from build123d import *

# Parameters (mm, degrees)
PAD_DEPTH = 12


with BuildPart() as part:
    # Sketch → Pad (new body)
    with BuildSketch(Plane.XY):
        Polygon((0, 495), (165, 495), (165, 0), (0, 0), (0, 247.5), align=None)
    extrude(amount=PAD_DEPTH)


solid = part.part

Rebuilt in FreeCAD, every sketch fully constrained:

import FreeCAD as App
import Part
import Sketcher
from FreeCAD import Vector

doc = App.newDocument("Part")
params = doc.addObject("Spreadsheet::Sheet", "Params")
for row, (alias, value) in enumerate([
    ("sketch1_width", "165 mm"),
    ("sketch1_height", "495 mm"),
    ("pad1_length", "12 mm"),
], start=1):
    params.set(f"A{row}", alias)
    params.set(f"B{row}", "=" + value)
    params.setAlias(f"B{row}", alias)

body = doc.addObject("PartDesign::Body", "Body")

sketch1 = body.newObject("Sketcher::SketchObject", "Sketch")
sketch1.AttachmentSupport = (doc.getObject("XY_Plane"), [""])
sketch1.MapMode = "FlatFace"
sketch1.addGeometry(Part.LineSegment(Vector(165, 495, 0), Vector(0, 495, 0)), False)
sketch1.addGeometry(Part.LineSegment(Vector(0, 495, 0), Vector(0, 0, 0)), False)
sketch1.addGeometry(Part.LineSegment(Vector(0, 0, 0), Vector(165, 0, 0)), False)
sketch1.addGeometry(Part.LineSegment(Vector(165, 0, 0), Vector(165, 495, 0)), False)
sketch1.addConstraint(Sketcher.Constraint("Coincident", 0, 2, 1, 1))
sketch1.addConstraint(Sketcher.Constraint("Coincident", 1, 2, 2, 1))
sketch1.addConstraint(Sketcher.Constraint("Coincident", 2, 2, 3, 1))
sketch1.addConstraint(Sketcher.Constraint("Coincident", 3, 2, 0, 1))
sketch1.addConstraint(Sketcher.Constraint("Horizontal", 0))
sketch1.addConstraint(Sketcher.Constraint("Vertical", 1))
sketch1.addConstraint(Sketcher.Constraint("Horizontal", 2))
sketch1.addConstraint(Sketcher.Constraint("Vertical", 3))
sketch1.addConstraint(Sketcher.Constraint("Coincident", 1, 2, -1, 1))
sketch1.addConstraint(Sketcher.Constraint("DistanceX", 0, 2, 0, 1, 165.0))
sketch1.addConstraint(Sketcher.Constraint("DistanceY", 1, 2, 1, 1, 495.0))
sketch1.setExpression("Constraints[9]", "Params.sketch1_width")
sketch1.setExpression("Constraints[10]", "Params.sketch1_height")
pad1 = body.newObject("PartDesign::Pad", "Pad")
pad1.Profile = sketch1
pad1.setExpression("Length", "Params.pad1_length")

doc.recompute()
